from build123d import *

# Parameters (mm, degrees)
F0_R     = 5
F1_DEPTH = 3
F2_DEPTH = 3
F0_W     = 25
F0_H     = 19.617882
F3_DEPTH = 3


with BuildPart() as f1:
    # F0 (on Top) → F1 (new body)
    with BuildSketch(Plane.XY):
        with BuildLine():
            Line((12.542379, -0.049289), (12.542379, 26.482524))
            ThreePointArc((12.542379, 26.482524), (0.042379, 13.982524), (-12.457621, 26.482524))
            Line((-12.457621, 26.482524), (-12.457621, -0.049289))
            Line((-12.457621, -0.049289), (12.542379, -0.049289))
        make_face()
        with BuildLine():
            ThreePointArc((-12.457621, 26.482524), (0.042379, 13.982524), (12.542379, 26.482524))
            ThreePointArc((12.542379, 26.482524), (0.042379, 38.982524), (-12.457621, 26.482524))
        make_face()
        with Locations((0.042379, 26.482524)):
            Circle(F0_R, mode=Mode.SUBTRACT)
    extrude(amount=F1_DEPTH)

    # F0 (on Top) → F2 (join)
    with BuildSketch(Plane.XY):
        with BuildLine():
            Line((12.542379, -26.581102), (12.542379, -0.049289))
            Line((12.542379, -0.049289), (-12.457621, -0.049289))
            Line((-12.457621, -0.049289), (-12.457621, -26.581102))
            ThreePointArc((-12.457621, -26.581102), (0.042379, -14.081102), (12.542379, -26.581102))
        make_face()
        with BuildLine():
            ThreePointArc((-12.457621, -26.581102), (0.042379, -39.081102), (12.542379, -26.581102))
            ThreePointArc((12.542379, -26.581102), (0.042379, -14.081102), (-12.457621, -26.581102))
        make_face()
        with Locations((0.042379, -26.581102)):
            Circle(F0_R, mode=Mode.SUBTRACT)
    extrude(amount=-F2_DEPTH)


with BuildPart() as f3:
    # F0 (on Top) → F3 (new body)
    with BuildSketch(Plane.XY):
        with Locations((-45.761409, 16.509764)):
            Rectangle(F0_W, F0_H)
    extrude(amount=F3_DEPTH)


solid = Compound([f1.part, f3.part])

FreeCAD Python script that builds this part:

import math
import FreeCAD as App
import Part
import Sketcher
from FreeCAD import Vector

doc = App.newDocument("Part")
body = doc.addObject("PartDesign::Body", "Body")
body.AllowCompound = True

# Sketch on XY plane
sketch1 = body.newObject("Sketcher::SketchObject", "Sketch")
sketch1.AttachmentSupport = (doc.getObject("XY_Plane"), [""])
sketch1.MapMode = "FlatFace"
sketch1.addGeometry(Part.LineSegment(Vector(12.542379, -0.049289, 0), Vector(12.542379, 26.482524, 0)), False)
sketch1.addGeometry(Part.ArcOfCircle(Part.Circle(Vector(0.042379, 26.482524, 0), Vector(0, 0, 1), 12.5), math.radians(0), math.radians(180)), False)
sketch1.addGeometry(Part.LineSegment(Vector(-12.457621, 26.482524, 0), Vector(-12.457621, -0.049289, 0)), False)
sketch1.addGeometry(Part.LineSegment(Vector(-12.457621, -0.049289, 0), Vector(12.542379, -0.049289, 0)), False)
sketch1.addGeometry(Part.Circle(Vector(0.042379, 26.482524, 0), Vector(0, 0, 1), 5), False)
sketch1.addConstraint(Sketcher.Constraint("Tangent", 0, 2, 1, 1))
sketch1.addConstraint(Sketcher.Constraint("Tangent", 1, 2, 2, 1))
sketch1.addConstraint(Sketcher.Constraint("Coincident", 2, 2, 3, 1))
sketch1.addConstraint(Sketcher.Constraint("Coincident", 3, 2, 0, 1))
sketch1.addConstraint(Sketcher.Constraint("Vertical", 0))
sketch1.addConstraint(Sketcher.Constraint("Vertical", 2))
sketch1.addConstraint(Sketcher.Constraint("Horizontal", 3))
sketch1.addConstraint(Sketcher.Constraint("Coincident", 4, 3, 1, 3))
sketch1.addConstraint(Sketcher.Constraint("Diameter", 4, 10.0))
sketch1.addConstraint(Sketcher.Constraint("Radius", 1, 12.5))
sketch1.addConstraint(Sketcher.Constraint("DistanceY", 0, 1, 0, 2, 26.531813))
sketch1.addConstraint(Sketcher.Constraint("DistanceX", -1, 1, 1, 3, 0.042379))
sketch1.addConstraint(Sketcher.Constraint("DistanceY", 2, 2, -1, 1, 0.049289))
pad1 = body.newObject("PartDesign::Pad", "Pad")
pad1.Profile = sketch1
pad1.Length = 3

# Sketch on XY plane
sketch2 = body.newObject("Sketcher::SketchObject", "Sketch001")
sketch2.AttachmentSupport = (doc.getObject("XY_Plane"), [""])
sketch2.MapMode = "FlatFace"
sketch2.addGeometry(Part.LineSegment(Vector(12.542379, -26.581102, 0), Vector(12.542379, -0.049289, 0)), False)
sketch2.addGeometry(Part.LineSegment(Vector(12.542379, -0.049289, 0), Vector(-12.457621, -0.049289, 0)), False)
sketch2.addGeometry(Part.LineSegment(Vector(-12.457621, -0.049289, 0), Vector(-12.457621, -26.581102, 0)), False)
sketch2.addGeometry(Part.ArcOfCircle(Part.Circle(Vector(0.042379, -26.581102, 0), Vector(0, 0, 1), 12.5), math.radians(180), math.radians(360)), False)
sketch2.addGeometry(Part.Circle(Vector(0.042379, -26.581102, 0), Vector(0, 0, 1), 5), False)
sketch2.addConstraint(Sketcher.Constraint("Coincident", 0, 2, 1, 1))
sketch2.addConstraint(Sketcher.Constraint("Coincident", 1, 2, 2, 1))
sketch2.addConstraint(Sketcher.Constraint("Tangent", 2, 2, 3, 1))
sketch2.addConstraint(Sketcher.Constraint("Tangent", 3, 2, 0, 1))
sketch2.addConstraint(Sketcher.Constraint("Vertical", 0))
sketch2.addConstraint(Sketcher.Constraint("Horizontal", 1))
sketch2.addConstraint(Sketcher.Constraint("Vertical", 2))
sketch2.addConstraint(Sketcher.Constraint("Coincident", 4, 3, 3, 3))
sketch2.addConstraint(Sketcher.Constraint("Diameter", 4, 10.0))
sketch2.addConstraint(Sketcher.Constraint("Radius", 3, 12.5))
sketch2.addConstraint(Sketcher.Constraint("DistanceY", 0, 1, 0, 2, 26.531813))
sketch2.addConstraint(Sketcher.Constraint("DistanceX", -1, 1, 3, 3, 0.042379))
sketch2.addConstraint(Sketcher.Constraint("DistanceY", 0, 2, -1, 1, 0.049289))
pad2 = body.newObject("PartDesign::Pad", "Pad001")
pad2.Profile = sketch2
pad2.Length = 3
pad2.Reversed = True
body2 = doc.addObject("PartDesign::Body", "Body001")

# Sketch on XY plane
sketch3 = body2.newObject("Sketcher::SketchObject", "Sketch002")
sketch3.AttachmentSupport = (doc.getObject("XY_Plane001"), [""])
sketch3.MapMode = "FlatFace"
sketch3.addGeometry(Part.LineSegment(Vector(-58.261409, 26.318705, 0), Vector(-58.261409, 6.700823, 0)), False)
sketch3.addGeometry(Part.LineSegment(Vector(-58.261409, 6.700823, 0), Vector(-33.261409, 6.700823, 0)), False)
sketch3.addGeometry(Part.LineSegment(Vector(-33.261409, 6.700823, 0), Vector(-33.261409, 26.318705, 0)), False)
sketch3.addGeometry(Part.LineSegment(Vector(-33.261409, 26.318705, 0), Vector(-58.261409, 26.318705, 0)), False)
sketch3.addConstraint(Sketcher.Constraint("Coincident", 0, 2, 1, 1))
sketch3.addConstraint(Sketcher.Constraint("Coincident", 1, 2, 2, 1))
sketch3.addConstraint(Sketcher.Constraint("Coincident", 2, 2, 3, 1))
sketch3.addConstraint(Sketcher.Constraint("Coincident", 3, 2, 0, 1))
sketch3.addConstraint(Sketcher.Constraint("Vertical", 0))
sketch3.addConstraint(Sketcher.Constraint("Horizontal", 1))
sketch3.addConstraint(Sketcher.Constraint("Vertical", 2))
sketch3.addConstraint(Sketcher.Constraint("Horizontal", 3))
sketch3.addConstraint(Sketcher.Constraint("DistanceX", 1, 1, 1, 2, 25.0))
sketch3.addConstraint(Sketcher.Constraint("DistanceY", 0, 2, 0, 1, 19.617882))
sketch3.addConstraint(Sketcher.Constraint("DistanceX", 0, 2, -1, 1, 58.261409))
sketch3.addConstraint(Sketcher.Constraint("DistanceY", -1, 1, 0, 2, 6.700823))
pad3 = body2.newObject("PartDesign::Pad", "Pad002")
pad3.Profile = sketch3
pad3.Length = 3

doc.recompute()
